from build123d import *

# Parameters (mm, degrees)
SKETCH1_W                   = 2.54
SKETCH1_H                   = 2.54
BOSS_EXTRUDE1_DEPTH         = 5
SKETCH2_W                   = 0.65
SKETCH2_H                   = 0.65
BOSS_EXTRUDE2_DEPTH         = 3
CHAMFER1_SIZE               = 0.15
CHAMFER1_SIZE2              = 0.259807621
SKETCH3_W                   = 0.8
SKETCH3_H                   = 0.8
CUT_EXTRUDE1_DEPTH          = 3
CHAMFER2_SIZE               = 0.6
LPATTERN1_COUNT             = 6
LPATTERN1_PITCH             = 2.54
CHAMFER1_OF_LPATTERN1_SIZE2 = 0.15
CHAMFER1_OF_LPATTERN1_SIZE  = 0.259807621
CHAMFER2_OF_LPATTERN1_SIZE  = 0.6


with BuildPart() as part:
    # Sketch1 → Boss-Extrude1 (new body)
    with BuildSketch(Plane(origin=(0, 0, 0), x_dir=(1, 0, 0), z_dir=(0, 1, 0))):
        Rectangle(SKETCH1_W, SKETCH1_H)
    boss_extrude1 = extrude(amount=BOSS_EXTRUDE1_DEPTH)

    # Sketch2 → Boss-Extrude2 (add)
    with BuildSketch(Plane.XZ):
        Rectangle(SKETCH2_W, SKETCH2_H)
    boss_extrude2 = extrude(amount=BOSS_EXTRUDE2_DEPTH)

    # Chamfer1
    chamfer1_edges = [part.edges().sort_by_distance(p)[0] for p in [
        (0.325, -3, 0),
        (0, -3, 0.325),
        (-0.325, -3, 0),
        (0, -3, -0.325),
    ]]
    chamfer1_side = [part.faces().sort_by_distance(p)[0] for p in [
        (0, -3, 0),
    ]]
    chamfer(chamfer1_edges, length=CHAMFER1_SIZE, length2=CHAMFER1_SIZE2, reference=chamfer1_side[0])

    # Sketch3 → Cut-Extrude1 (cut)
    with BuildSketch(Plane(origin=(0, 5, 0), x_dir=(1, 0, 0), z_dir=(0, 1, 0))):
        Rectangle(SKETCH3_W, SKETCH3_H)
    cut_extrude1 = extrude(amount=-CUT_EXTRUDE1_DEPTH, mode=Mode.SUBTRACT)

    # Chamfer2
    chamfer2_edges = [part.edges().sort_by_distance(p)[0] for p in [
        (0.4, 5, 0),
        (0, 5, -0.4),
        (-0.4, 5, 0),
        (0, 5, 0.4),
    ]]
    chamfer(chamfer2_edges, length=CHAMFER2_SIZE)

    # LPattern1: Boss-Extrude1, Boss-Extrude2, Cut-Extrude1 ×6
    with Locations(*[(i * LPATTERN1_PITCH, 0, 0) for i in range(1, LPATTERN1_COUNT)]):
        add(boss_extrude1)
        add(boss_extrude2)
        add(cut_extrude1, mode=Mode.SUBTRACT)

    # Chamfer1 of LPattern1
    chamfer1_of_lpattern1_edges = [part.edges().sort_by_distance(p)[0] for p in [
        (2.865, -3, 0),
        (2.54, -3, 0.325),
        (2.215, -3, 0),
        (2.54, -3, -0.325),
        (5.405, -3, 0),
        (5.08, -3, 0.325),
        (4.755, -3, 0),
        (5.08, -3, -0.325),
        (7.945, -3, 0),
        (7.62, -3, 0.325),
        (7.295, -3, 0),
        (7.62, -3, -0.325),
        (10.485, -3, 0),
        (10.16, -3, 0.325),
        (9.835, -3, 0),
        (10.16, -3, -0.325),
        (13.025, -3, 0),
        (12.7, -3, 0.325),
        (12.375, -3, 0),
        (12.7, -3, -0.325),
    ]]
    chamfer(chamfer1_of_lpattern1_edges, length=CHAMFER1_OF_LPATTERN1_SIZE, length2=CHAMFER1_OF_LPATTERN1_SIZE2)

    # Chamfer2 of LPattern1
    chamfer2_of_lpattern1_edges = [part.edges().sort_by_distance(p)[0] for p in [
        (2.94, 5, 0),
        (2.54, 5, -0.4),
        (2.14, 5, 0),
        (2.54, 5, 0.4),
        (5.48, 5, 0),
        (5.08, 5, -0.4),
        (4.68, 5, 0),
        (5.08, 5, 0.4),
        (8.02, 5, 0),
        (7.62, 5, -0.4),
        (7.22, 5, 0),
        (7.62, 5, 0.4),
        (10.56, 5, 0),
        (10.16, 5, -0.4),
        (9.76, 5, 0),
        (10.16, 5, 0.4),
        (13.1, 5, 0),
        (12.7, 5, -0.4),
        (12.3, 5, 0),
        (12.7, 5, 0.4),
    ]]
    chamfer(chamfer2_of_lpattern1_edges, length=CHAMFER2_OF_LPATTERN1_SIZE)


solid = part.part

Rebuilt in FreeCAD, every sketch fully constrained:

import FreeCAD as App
import Part
import Sketcher
from FreeCAD import Vector


def edges_at(feature, points):
    """Names of the edges that pass closest to the given points."""
    edges = feature.Shape.Edges
    near = lambda p: min(range(len(edges)), key=lambda i: edges[i].distToShape(Part.Vertex(*p))[0])
    return sorted({f"Edge{near(p) + 1}" for p in points})

doc = App.newDocument("Part")
body = doc.addObject("PartDesign::Body", "Body")

sketch1 = doc.addObject("Sketcher::SketchObject", "Sketch")
body.addObject(sketch1)
sketch1.AttachmentSupport = (doc.XZ_Plane, [""])
sketch1.MapMode = "FlatFace"
sketch1.addGeometry([
    Part.LineSegment(Vector(-1.27, -1.27, 0), Vector(-1.27, 1.27, 0)),
    Part.LineSegment(Vector(-1.27, 1.27, 0), Vector(1.27, 1.27, 0)),
    Part.LineSegment(Vector(1.27, 1.27, 0), Vector(1.27, -1.27, 0)),
    Part.LineSegment(Vector(1.27, -1.27, 0), Vector(-1.27, -1.27, 0)),
], False)
sketch1.addConstraint([
    Sketcher.Constraint("Coincident", 0, 2, 1, 1),
    Sketcher.Constraint("Coincident", 1, 2, 2, 1),
    Sketcher.Constraint("Coincident", 2, 2, 3, 1),
    Sketcher.Constraint("Coincident", 3, 2, 0, 1),
    Sketcher.Constraint("Vertical", 0),
    Sketcher.Constraint("Horizontal", 1),
    Sketcher.Constraint("Vertical", 2),
    Sketcher.Constraint("Horizontal", 3),
    Sketcher.Constraint("Symmetric", 0, 2, 2, 2, -1, 1),
    Sketcher.Constraint("Equal", 3, 0),
    Sketcher.Constraint("DistanceX", 1, 1, 1, 2, 2.54),
])
pad1 = doc.addObject("PartDesign::Pad", "Pad")
body.addObject(pad1)
pad1.Profile = sketch1
pad1.Length = 5
pad1.Reversed = True

sketch2 = doc.addObject("Sketcher::SketchObject", "Sketch001")
body.addObject(sketch2)
sketch2.AttachmentSupport = (doc.XZ_Plane, [""])
sketch2.MapMode = "FlatFace"
sketch2.addGeometry([
    Part.LineSegment(Vector(-0.325, 0.325, 0), Vector(-0.325, -0.325, 0)),
    Part.LineSegment(Vector(-0.325, -0.325, 0), Vector(0.325, -0.325, 0)),
    Part.LineSegment(Vector(0.325, -0.325, 0), Vector(0.325, 0.325, 0)),
    Part.LineSegment(Vector(0.325, 0.325, 0), Vector(-0.325, 0.325, 0)),
], False)
sketch2.addConstraint([
    Sketcher.Constraint("Coincident", 0, 2, 1, 1),
    Sketcher.Constraint("Coincident", 1, 2, 2, 1),
    Sketcher.Constraint("Coincident", 2, 2, 3, 1),
    Sketcher.Constraint("Coincident", 3, 2, 0, 1),
    Sketcher.Constraint("Vertical", 0),
    Sketcher.Constraint("Horizontal", 1),
    Sketcher.Constraint("Vertical", 2),
    Sketcher.Constraint("Horizontal", 3),
    Sketcher.Constraint("Symmetric", 0, 2, 2, 2, -1, 1),
    Sketcher.Constraint("Equal", 3, 0),
    Sketcher.Constraint("DistanceX", 1, 1, 1, 2, 0.65),
])
pad2 = doc.addObject("PartDesign::Pad", "Pad001")
body.addObject(pad2)
pad2.Profile = sketch2
pad2.Length = 3
doc.recompute()

chamfer = doc.addObject("PartDesign::Chamfer", "Chamfer")
body.addObject(chamfer)
chamfer.Base = (pad2, edges_at(pad2, [
    (0.325, -3, 0),
    (0, -3, 0.325),
    (-0.325, -3, 0),
    (0, -3, -0.325),
]))
chamfer.ChamferType = "Two distances"
chamfer.Size = 0.15
chamfer.Size2 = 0.259808
chamfer.FlipDirection = True

sketch3 = doc.addObject("Sketcher::SketchObject", "Sketch002")
body.addObject(sketch3)
sketch3.AttachmentSupport = (doc.XZ_Plane, [""])
sketch3.MapMode = "FlatFace"
sketch3.AttachmentOffset = App.Placement(Vector(0, 0, -5), App.Rotation())
sketch3.addGeometry([
    Part.LineSegment(Vector(-0.4, -0.4, 0), Vector(-0.4, 0.4, 0)),
    Part.LineSegment(Vector(-0.4, 0.4, 0), Vector(0.4, 0.4, 0)),
    Part.LineSegment(Vector(0.4, 0.4, 0), Vector(0.4, -0.4, 0)),
    Part.LineSegment(Vector(0.4, -0.4, 0), Vector(-0.4, -0.4, 0)),
], False)
sketch3.addConstraint([
    Sketcher.Constraint("Coincident", 0, 2, 1, 1),
    Sketcher.Constraint("Coincident", 1, 2, 2, 1),
    Sketcher.Constraint("Coincident", 2, 2, 3, 1),
    Sketcher.Constraint("Coincident", 3, 2, 0, 1),
    Sketcher.Constraint("Vertical", 0),
    Sketcher.Constraint("Horizontal", 1),
    Sketcher.Constraint("Vertical", 2),
    Sketcher.Constraint("Horizontal", 3),
    Sketcher.Constraint("Symmetric", 0, 2, 2, 2, -1, 1),
    Sketcher.Constraint("Equal", 3, 0),
    Sketcher.Constraint("DistanceX", 1, 1, 1, 2, 0.8),
])
pocket1 = doc.addObject("PartDesign::Pocket", "Pocket")
body.addObject(pocket1)
pocket1.Profile = sketch3
pocket1.Length = 3
pocket1.Reversed = True
doc.recompute()

chamfer2 = doc.addObject("PartDesign::Chamfer", "Chamfer001")
body.addObject(chamfer2)
chamfer2.Base = (pocket1, edges_at(pocket1, [
    (0.4, 5, 0),
    (0, 5, -0.4),
    (-0.4, 5, 0),
    (0, 5, 0.4),
]))
chamfer2.Size = 0.6
doc.recompute()

linearpattern = doc.addObject("PartDesign::LinearPattern", "LinearPattern")
body.addObject(linearpattern)
linearpattern.Originals = [pad1, pad2, pocket1]
linearpattern.Direction = (doc.X_Axis, [""])
linearpattern.Mode = "offset"
linearpattern.Offset = 2.54
linearpattern.Occurrences = 6
body.Tip = linearpattern
doc.recompute()

chamfer3 = doc.addObject("PartDesign::Chamfer", "Chamfer002")
body.addObject(chamfer3)
chamfer3.Base = (linearpattern, edges_at(linearpattern, [
    (2.865, -3, 0),
    (2.54, -3, 0.325),
    (2.215, -3, 0),
    (2.54, -3, -0.325),
    (5.405, -3, 0),
    (5.08, -3, 0.325),
    (4.755, -3, 0),
    (5.08, -3, -0.325),
    (7.945, -3, 0),
    (7.62, -3, 0.325),
    (7.295, -3, 0),
    (7.62, -3, -0.325),
    (10.485, -3, 0),
    (10.16, -3, 0.325),
    (9.835, -3, 0),
    (10.16, -3, -0.325),
    (13.025, -3, 0),
    (12.7, -3, 0.325),
    (12.375, -3, 0),
    (12.7, -3, -0.325),
]))
chamfer3.ChamferType = "Two distances"
chamfer3.Size = 0.259808
chamfer3.Size2 = 0.15
doc.recompute()

chamfer4 = doc.addObject("PartDesign::Chamfer", "Chamfer003")
body.addObject(chamfer4)
chamfer4.Base = (chamfer3, edges_at(chamfer3, [
    (2.94, 5, 0),
    (2.54, 5, -0.4),
    (2.14, 5, 0),
    (2.54, 5, 0.4),
    (5.48, 5, 0),
    (5.08, 5, -0.4),
    (4.68, 5, 0),
    (5.08, 5, 0.4),
    (8.02, 5, 0),
    (7.62, 5, -0.4),
    (7.22, 5, 0),
    (7.62, 5, 0.4),
    (10.56, 5, 0),
    (10.16, 5, -0.4),
    (9.76, 5, 0),
    (10.16, 5, 0.4),
    (13.1, 5, 0),
    (12.7, 5, -0.4),
    (12.3, 5, 0),
    (12.7, 5, 0.4),
]))
chamfer4.Size = 0.6

doc.recompute()
